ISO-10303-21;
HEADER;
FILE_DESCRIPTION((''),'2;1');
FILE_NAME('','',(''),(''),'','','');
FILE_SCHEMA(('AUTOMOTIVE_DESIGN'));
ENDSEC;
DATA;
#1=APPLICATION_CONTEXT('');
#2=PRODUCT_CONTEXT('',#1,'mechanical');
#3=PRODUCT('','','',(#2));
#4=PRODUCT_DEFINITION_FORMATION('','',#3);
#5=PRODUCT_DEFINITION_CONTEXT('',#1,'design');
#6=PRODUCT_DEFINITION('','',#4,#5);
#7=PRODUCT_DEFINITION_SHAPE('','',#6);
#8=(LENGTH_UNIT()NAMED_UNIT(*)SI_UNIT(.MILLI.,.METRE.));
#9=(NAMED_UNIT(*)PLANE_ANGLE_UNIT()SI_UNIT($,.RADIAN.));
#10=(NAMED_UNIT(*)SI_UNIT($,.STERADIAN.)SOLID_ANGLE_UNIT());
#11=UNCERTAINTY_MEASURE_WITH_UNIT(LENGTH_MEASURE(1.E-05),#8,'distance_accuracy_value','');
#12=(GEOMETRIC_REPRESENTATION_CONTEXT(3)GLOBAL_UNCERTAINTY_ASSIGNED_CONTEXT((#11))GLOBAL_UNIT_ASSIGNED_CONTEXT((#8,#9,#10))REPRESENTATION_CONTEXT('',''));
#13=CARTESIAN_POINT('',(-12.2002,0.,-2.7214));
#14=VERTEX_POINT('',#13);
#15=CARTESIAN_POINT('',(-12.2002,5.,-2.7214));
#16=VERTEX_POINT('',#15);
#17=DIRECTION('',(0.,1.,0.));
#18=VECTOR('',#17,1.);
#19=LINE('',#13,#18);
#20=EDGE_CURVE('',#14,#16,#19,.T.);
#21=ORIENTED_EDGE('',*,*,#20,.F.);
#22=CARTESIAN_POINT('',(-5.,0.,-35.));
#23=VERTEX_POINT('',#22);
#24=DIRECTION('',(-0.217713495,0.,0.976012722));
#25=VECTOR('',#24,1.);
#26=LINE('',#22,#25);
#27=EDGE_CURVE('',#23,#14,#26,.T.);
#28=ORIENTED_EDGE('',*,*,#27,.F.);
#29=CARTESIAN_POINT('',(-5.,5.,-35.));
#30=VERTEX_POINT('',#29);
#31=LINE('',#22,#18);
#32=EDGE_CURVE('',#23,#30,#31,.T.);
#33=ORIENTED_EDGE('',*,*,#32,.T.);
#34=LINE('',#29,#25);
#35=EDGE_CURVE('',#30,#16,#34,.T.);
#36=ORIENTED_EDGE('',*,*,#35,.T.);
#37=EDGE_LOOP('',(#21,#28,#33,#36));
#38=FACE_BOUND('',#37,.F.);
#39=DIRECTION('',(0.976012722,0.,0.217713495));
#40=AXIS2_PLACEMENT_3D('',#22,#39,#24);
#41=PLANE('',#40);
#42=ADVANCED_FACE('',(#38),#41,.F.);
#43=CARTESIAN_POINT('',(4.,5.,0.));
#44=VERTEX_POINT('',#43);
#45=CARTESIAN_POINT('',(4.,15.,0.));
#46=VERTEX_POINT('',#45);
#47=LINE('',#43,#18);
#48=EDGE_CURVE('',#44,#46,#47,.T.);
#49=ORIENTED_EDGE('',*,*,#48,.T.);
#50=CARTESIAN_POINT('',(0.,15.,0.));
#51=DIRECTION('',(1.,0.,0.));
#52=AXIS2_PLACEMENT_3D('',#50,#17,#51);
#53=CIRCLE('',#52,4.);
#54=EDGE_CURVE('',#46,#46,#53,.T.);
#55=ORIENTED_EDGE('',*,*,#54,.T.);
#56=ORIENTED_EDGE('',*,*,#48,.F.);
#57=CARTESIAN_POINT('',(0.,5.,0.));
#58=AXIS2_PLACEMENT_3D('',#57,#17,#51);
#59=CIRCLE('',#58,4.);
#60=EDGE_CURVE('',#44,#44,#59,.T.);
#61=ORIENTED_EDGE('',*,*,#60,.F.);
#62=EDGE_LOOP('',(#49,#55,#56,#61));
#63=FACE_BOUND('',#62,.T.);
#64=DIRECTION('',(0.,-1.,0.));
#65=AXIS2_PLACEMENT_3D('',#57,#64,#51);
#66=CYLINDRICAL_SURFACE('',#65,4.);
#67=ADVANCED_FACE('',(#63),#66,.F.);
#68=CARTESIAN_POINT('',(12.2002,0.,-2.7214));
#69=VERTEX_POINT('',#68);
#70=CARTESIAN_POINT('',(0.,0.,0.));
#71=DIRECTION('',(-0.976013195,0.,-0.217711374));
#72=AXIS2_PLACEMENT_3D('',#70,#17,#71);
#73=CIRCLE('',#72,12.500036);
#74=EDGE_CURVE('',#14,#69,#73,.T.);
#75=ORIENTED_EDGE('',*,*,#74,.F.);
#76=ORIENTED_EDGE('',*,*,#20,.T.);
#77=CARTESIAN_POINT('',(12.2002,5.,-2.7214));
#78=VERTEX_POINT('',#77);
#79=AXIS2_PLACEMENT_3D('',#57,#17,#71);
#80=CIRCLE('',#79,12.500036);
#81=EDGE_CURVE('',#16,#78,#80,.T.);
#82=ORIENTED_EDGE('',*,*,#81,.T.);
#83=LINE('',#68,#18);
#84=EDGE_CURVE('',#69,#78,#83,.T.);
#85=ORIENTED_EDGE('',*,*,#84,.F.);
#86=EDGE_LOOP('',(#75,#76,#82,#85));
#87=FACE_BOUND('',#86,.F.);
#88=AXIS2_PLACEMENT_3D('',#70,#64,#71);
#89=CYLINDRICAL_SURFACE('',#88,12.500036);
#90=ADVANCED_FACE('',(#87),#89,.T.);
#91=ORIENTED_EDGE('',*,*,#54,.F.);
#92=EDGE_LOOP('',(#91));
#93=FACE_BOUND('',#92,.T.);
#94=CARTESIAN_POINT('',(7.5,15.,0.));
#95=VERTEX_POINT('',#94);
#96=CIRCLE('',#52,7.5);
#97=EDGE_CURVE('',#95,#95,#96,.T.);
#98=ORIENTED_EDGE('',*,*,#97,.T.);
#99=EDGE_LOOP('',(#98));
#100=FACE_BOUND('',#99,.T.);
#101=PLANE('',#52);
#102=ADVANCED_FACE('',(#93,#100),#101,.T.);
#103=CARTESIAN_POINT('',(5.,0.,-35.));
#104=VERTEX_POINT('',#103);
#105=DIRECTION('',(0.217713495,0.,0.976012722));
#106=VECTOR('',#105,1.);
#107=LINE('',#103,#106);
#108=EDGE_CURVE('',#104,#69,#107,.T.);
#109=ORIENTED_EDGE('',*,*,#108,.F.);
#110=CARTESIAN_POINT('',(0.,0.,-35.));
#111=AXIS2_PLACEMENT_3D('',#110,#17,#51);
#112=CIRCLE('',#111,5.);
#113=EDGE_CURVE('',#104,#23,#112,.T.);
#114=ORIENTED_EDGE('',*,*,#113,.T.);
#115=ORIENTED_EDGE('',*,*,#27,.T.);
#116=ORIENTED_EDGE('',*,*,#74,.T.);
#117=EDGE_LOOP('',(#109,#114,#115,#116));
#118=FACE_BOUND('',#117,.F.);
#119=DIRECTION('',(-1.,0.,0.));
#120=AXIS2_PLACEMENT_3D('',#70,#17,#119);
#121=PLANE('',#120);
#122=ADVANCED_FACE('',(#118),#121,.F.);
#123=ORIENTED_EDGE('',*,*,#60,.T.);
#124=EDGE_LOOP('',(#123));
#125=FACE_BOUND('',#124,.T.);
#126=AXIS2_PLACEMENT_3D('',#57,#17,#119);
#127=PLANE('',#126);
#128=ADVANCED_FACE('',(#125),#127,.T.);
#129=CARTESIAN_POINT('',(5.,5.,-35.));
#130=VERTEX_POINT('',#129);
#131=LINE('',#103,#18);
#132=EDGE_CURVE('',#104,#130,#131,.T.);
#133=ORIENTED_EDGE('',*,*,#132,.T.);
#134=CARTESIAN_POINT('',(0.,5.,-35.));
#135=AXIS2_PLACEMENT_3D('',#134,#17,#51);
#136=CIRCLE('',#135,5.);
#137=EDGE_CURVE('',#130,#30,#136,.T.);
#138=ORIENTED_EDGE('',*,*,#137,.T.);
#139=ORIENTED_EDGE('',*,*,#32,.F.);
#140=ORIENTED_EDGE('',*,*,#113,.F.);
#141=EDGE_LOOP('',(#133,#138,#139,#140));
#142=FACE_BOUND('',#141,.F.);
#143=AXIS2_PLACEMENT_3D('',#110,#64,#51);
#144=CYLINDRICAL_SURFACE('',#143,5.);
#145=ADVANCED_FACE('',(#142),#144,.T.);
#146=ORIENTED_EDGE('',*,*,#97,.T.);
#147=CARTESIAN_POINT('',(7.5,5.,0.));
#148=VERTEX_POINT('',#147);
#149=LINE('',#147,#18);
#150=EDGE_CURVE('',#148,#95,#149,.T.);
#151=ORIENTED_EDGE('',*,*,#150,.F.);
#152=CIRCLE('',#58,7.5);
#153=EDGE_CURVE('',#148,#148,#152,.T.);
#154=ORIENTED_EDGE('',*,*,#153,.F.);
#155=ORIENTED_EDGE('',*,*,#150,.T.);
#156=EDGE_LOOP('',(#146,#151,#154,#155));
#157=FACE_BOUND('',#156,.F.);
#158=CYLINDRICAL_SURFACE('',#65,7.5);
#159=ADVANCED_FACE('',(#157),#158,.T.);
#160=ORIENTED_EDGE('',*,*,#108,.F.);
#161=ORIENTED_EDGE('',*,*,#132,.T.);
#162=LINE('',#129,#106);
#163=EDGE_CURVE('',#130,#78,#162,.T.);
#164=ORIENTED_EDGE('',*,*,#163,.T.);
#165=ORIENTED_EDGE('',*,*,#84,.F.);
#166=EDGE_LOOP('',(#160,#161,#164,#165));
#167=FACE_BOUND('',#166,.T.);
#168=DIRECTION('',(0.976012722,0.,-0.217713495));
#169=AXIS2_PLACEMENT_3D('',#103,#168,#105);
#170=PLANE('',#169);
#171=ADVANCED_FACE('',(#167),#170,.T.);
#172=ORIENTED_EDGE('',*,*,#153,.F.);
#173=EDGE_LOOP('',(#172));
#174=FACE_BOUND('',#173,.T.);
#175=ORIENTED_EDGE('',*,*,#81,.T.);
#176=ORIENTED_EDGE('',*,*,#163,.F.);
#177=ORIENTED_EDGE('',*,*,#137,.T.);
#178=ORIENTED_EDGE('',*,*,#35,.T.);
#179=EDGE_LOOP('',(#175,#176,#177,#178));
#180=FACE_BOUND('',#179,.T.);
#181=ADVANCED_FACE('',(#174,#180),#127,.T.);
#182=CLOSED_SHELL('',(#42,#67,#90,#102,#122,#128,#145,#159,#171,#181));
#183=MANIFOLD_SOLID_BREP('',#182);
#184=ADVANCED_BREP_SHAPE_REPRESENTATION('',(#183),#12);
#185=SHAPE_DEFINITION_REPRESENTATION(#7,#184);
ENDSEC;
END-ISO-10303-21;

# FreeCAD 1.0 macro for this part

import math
import FreeCAD as App
import Part
import Sketcher
from FreeCAD import Vector

doc = App.newDocument("Part")
body = doc.addObject("PartDesign::Body", "Body")

# Sketch on XZ plane
sketch1 = doc.addObject("Sketcher::SketchObject", "Sketch")
body.addObject(sketch1)
sketch1.AttachmentSupport = (doc.XZ_Plane, [""])
sketch1.MapMode = "FlatFace"
sketch1.addGeometry([
    Part.LineSegment(Vector(-5, -35, 0), Vector(-12, -3, 0)),
    Part.ArcOfCircle(Part.Circle(Vector(0, 0, 0), Vector(0, 0, 1), 13), math.radians(-13), math.radians(193)),
    Part.LineSegment(Vector(12, -3, 0), Vector(5, -35, 0)),
    Part.ArcOfCircle(Part.Circle(Vector(0, -35, 0), Vector(0, 0, 1), 5), math.radians(180), math.radians(360)),
], False)
sketch1.addConstraint([
    Sketcher.Constraint("Tangent", 0, 2, 1, 2),
    Sketcher.Constraint("Tangent", 1, 1, 2, 1),
    Sketcher.Constraint("Coincident", 2, 2, 3, 2),
    Sketcher.Constraint("Coincident", 3, 1, 0, 1),
    Sketcher.Constraint("Coincident", 1, 3, -1, 1),
    Sketcher.Constraint("Symmetric", 2, 2, 3, 1, -2),
    Sketcher.Constraint("Horizontal", 3, 3, 2, 2),
    Sketcher.Constraint("Radius", 3, 5.0),
    Sketcher.Constraint("Radius", 1, 12.5),
    Sketcher.Constraint("DistanceY", 3, 3, -1, 1, 35.0),
])
pad1 = doc.addObject("PartDesign::Pad", "Pad")
body.addObject(pad1)
pad1.Profile = sketch1
pad1.Length = 5
pad1.Reversed = True

# Sketch on XZ plane
sketch2 = doc.addObject("Sketcher::SketchObject", "Sketch001")
body.addObject(sketch2)
sketch2.AttachmentSupport = (doc.XZ_Plane, [""])
sketch2.MapMode = "FlatFace"
sketch2.AttachmentOffset = App.Placement(Vector(0, 0, -5), App.Rotation())
sketch2.addGeometry([
    Part.Circle(Vector(0, 0, 0), Vector(0, 0, 1), 7.5),
    Part.Circle(Vector(0, 0, 0), Vector(0, 0, 1), 4),
], False)
sketch2.addConstraint([
    Sketcher.Constraint("Coincident", 0, 3, -1, 1),
    Sketcher.Constraint("Coincident", 1, 3, -1, 1),
    Sketcher.Constraint("Diameter", 0, 15.0),
    Sketcher.Constraint("Diameter", 1, 8.0),
])
pad2 = doc.addObject("PartDesign::Pad", "Pad001")
body.addObject(pad2)
pad2.Profile = sketch2
pad2.Length = 10
pad2.Reversed = True

doc.recompute()
